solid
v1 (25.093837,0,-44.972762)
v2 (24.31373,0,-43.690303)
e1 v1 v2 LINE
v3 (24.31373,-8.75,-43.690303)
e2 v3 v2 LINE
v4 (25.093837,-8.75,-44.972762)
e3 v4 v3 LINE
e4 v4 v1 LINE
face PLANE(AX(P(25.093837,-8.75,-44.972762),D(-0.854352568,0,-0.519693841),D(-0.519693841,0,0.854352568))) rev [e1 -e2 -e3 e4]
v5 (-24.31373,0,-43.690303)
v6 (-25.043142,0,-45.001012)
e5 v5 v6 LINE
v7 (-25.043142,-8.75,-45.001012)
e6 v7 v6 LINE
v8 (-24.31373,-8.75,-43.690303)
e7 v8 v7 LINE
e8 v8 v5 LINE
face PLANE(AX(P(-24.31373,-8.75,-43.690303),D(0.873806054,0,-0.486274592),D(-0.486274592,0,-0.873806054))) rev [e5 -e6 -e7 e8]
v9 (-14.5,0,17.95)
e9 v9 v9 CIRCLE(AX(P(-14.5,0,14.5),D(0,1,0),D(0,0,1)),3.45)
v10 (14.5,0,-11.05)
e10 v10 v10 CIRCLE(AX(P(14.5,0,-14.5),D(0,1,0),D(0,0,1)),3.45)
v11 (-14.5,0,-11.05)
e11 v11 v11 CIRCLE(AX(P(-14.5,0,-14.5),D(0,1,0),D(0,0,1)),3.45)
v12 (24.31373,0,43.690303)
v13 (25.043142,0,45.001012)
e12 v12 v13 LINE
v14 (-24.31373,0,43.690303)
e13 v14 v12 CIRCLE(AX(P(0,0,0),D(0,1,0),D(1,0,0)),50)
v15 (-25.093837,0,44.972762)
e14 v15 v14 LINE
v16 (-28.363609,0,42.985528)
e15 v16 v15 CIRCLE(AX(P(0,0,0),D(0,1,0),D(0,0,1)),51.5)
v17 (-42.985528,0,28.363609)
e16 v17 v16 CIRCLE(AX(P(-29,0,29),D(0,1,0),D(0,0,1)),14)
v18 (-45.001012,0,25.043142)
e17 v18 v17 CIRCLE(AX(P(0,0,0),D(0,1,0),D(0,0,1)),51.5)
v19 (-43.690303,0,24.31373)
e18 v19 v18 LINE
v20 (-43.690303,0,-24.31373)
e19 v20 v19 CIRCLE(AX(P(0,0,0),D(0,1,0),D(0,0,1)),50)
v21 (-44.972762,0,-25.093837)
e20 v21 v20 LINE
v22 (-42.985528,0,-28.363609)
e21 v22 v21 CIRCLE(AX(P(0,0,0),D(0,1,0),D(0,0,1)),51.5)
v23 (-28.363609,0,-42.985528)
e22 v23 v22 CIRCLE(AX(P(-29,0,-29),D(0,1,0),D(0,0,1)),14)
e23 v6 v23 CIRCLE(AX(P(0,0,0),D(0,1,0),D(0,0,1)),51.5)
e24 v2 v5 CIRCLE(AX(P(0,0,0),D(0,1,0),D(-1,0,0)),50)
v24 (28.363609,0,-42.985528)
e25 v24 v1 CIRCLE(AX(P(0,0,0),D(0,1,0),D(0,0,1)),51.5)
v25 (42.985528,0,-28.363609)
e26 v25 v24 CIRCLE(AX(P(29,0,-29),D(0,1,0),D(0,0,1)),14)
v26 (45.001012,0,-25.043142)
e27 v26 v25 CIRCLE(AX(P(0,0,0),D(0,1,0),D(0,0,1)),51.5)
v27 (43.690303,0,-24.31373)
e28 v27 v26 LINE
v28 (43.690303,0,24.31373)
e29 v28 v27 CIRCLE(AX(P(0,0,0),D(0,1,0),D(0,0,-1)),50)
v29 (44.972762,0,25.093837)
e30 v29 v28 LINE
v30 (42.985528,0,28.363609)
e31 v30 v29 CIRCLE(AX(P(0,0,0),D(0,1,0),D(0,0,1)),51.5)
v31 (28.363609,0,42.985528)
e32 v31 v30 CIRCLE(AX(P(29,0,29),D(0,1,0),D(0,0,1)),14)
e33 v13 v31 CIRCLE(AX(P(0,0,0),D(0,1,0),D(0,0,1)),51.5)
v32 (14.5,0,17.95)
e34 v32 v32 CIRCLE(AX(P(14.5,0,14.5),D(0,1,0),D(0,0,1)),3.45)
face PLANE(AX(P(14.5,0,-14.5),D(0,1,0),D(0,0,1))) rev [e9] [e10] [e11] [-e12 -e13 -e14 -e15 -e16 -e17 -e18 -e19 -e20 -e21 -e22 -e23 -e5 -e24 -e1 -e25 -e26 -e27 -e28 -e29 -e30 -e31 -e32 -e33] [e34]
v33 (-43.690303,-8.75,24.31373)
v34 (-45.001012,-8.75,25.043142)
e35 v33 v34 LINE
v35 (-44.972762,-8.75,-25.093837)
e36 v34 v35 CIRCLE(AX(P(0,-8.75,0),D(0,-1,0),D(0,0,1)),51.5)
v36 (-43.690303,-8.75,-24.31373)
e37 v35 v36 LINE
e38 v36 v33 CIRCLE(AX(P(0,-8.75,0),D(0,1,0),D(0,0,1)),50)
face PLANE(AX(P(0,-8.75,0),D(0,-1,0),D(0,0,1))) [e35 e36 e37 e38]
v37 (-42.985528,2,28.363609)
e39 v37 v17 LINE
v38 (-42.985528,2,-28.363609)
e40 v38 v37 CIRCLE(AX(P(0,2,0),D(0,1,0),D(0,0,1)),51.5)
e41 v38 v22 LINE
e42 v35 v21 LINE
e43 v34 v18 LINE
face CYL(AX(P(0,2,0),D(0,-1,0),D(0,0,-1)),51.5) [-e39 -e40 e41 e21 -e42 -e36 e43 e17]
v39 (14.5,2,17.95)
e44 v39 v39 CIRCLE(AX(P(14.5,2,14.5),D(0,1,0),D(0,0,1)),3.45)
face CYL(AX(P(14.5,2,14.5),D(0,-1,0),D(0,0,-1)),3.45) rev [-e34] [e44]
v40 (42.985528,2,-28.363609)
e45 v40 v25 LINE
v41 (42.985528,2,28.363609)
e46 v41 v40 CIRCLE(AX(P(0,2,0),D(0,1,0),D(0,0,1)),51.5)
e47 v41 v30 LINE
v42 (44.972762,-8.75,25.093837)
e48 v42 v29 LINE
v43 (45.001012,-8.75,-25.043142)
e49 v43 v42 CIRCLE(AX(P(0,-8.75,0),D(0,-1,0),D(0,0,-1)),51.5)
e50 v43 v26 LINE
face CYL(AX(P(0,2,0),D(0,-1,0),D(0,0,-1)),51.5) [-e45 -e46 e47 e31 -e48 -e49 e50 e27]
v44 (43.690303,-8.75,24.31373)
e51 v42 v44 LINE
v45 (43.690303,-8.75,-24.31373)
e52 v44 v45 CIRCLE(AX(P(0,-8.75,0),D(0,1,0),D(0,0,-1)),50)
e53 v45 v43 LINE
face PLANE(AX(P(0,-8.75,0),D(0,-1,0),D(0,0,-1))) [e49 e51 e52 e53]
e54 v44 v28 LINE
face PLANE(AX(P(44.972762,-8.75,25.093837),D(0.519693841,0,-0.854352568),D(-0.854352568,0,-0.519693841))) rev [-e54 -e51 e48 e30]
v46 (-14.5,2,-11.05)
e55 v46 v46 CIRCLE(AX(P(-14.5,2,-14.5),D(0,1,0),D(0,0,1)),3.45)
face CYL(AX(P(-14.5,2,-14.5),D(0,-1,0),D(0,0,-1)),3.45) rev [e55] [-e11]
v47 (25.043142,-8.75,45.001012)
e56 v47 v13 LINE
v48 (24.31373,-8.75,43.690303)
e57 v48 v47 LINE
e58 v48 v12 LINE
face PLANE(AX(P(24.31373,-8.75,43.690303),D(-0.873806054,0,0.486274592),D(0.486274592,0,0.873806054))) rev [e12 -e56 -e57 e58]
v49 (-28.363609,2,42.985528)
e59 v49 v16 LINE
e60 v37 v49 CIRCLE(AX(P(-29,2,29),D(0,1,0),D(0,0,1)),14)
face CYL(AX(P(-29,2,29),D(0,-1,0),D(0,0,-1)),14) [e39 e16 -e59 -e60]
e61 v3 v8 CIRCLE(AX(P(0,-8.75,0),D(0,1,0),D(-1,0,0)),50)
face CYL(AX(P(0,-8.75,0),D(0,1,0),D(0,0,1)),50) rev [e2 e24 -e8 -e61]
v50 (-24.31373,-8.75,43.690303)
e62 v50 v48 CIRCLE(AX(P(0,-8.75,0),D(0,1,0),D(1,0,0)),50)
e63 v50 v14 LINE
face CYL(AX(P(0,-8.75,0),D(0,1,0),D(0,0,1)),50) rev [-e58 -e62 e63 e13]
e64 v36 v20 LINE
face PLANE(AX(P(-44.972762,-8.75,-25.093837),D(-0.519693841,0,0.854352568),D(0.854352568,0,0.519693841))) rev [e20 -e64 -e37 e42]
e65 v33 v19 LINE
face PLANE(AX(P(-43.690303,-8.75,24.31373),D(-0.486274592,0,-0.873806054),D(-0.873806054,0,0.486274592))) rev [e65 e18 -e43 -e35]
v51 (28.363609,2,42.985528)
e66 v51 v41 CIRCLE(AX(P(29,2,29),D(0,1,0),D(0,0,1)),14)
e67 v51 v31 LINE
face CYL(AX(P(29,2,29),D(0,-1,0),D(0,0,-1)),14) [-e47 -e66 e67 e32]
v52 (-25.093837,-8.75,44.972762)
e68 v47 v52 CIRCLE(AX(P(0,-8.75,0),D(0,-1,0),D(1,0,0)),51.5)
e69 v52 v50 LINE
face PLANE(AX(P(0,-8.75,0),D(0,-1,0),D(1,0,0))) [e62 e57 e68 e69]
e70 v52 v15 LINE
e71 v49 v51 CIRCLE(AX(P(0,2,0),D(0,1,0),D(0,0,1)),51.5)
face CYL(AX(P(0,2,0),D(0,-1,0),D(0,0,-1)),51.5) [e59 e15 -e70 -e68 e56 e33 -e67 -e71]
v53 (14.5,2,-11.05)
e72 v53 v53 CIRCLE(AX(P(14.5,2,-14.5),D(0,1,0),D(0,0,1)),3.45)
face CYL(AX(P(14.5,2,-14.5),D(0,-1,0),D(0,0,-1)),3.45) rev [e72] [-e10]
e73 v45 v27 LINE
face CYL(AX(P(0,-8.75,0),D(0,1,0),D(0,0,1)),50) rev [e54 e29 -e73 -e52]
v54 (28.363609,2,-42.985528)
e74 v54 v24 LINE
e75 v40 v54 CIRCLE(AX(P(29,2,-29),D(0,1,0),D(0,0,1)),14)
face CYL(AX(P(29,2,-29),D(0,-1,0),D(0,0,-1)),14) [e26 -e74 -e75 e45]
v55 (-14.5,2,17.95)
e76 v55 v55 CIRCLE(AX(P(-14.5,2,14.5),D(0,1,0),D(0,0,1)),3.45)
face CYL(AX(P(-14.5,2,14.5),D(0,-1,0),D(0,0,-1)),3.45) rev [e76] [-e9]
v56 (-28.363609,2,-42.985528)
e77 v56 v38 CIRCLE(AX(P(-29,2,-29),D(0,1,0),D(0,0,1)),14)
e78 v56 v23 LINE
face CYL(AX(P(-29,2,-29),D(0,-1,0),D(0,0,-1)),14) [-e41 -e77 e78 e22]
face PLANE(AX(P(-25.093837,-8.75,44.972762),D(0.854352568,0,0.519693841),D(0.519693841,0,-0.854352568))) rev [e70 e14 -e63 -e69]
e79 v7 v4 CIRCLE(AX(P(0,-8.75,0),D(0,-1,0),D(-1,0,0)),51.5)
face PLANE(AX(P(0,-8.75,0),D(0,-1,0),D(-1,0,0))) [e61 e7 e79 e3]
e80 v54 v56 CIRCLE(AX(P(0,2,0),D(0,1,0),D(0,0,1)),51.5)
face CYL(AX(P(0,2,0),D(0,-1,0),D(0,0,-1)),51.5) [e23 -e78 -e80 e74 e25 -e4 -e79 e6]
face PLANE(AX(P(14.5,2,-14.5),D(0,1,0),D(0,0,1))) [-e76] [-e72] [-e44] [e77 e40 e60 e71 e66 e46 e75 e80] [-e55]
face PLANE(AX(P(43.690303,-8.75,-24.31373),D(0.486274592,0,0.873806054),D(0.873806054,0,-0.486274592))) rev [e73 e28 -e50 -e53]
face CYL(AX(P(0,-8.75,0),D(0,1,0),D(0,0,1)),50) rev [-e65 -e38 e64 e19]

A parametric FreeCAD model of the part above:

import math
import FreeCAD as App
import Part
import Sketcher

V = App.Vector
Q = App.Units.Quantity

doc = App.newDocument("Part")
body = doc.addObject("PartDesign::Body", "Body")

sketch1 = body.newObject("Sketcher::SketchObject", "Sketch")
sketch1.AttachmentSupport = (doc.getObject("XZ_Plane"), [""])
sketch1.MapMode = "FlatFace"
sketch1.addGeometry(Part.ArcOfCircle(Part.Circle(V(29, 29, 0), V(0, 0, 1), 14), math.radians(-3), math.radians(93)), False)
sketch1.addGeometry(Part.ArcOfCircle(Part.Circle(V(0, 0, 0), V(0, 0, 1), 51.5), math.radians(-33), math.radians(33)), False)
sketch1.addGeometry(Part.ArcOfCircle(Part.Circle(V(29, -29, 0), V(0, 0, 1), 14), math.radians(-93), math.radians(3)), False)
sketch1.addGeometry(Part.ArcOfCircle(Part.Circle(V(0, 0, 0), V(0, 0, 1), 51.5), math.radians(-123), math.radians(-57)), False)
sketch1.addGeometry(Part.ArcOfCircle(Part.Circle(V(-29, -29, 0), V(0, 0, 1), 14), math.radians(177), math.radians(273)), False)
sketch1.addGeometry(Part.ArcOfCircle(Part.Circle(V(0, 0, 0), V(0, 0, 1), 51.5), math.radians(147), math.radians(213)), False)
sketch1.addGeometry(Part.ArcOfCircle(Part.Circle(V(-29, 29, 0), V(0, 0, 1), 14), math.radians(87), math.radians(183)), False)
sketch1.addGeometry(Part.ArcOfCircle(Part.Circle(V(0, 0, 0), V(0, 0, 1), 51.5), math.radians(57), math.radians(123)), False)
sketch1.addGeometry(Part.Circle(V(-14.5, 14.5, 0), V(0, 0, 1), 3.5), False)
sketch1.addGeometry(Part.Circle(V(14.5, 14.5, 0), V(0, 0, 1), 3.5), False)
sketch1.addGeometry(Part.Circle(V(-14.5, -14.5, 0), V(0, 0, 1), 3.5), False)
sketch1.addGeometry(Part.Circle(V(14.5, -14.5, 0), V(0, 0, 1), 3.5), False)
sketch1.addConstraint(Sketcher.Constraint("Coincident", 0, 1, 1, 2))
sketch1.addConstraint(Sketcher.Constraint("Coincident", 1, 1, 2, 2))
sketch1.addConstraint(Sketcher.Constraint("Coincident", 2, 1, 3, 2))
sketch1.addConstraint(Sketcher.Constraint("Coincident", 3, 1, 4, 2))
sketch1.addConstraint(Sketcher.Constraint("Coincident", 4, 1, 5, 2))
sketch1.addConstraint(Sketcher.Constraint("Coincident", 5, 1, 6, 2))
sketch1.addConstraint(Sketcher.Constraint("Coincident", 6, 1, 7, 2))
sketch1.addConstraint(Sketcher.Constraint("Coincident", 7, 1, 0, 2))
sketch1.addConstraint(Sketcher.Constraint("Coincident", 1, 3, -1, 1))
sketch1.addConstraint(Sketcher.Constraint("Coincident", 3, 3, -1, 1))
sketch1.addConstraint(Sketcher.Constraint("Coincident", 5, 3, -1, 1))
sketch1.addConstraint(Sketcher.Constraint("Coincident", 7, 3, -1, 1))
sketch1.addConstraint(Sketcher.Constraint("Equal", 0, 2))
sketch1.addConstraint(Sketcher.Constraint("Equal", 1, 3))
sketch1.addConstraint(Sketcher.Constraint("Equal", 2, 4))
sketch1.addConstraint(Sketcher.Constraint("Equal", 3, 5))
sketch1.addConstraint(Sketcher.Constraint("Equal", 4, 6))
sketch1.addConstraint(Sketcher.Constraint("Equal", 5, 7))
sketch1.addConstraint(Sketcher.Constraint("Equal", 8, 9))
sketch1.addConstraint(Sketcher.Constraint("Equal", 9, 10))
sketch1.addConstraint(Sketcher.Constraint("Equal", 10, 11))
sketch1.addConstraint(Sketcher.Constraint("Symmetric", 0, 3, 4, 3, -1, 1))
sketch1.addConstraint(Sketcher.Constraint("Symmetric", 2, 3, 6, 3, -1, 1))
sketch1.addConstraint(Sketcher.Constraint("Symmetric", 9, 3, 10, 3, -1, 1))
sketch1.addConstraint(Sketcher.Constraint("Symmetric", 8, 3, 11, 3, -1, 1))
sketch1.addConstraint(Sketcher.Constraint("Symmetric", 2, 3, 4, 3, -2))
sketch1.addConstraint(Sketcher.Constraint("Symmetric", 8, 3, 9, 3, -2))
sketch1.addConstraint(Sketcher.Constraint("Radius", 0, Q("14 mm")))
sketch1.addConstraint(Sketcher.Constraint("Diameter", 8, Q("6.9 mm")))
sketch1.addConstraint(Sketcher.Constraint("Radius", 1, Q("51.5 mm")))
sketch1.addConstraint(Sketcher.Constraint("DistanceX", -1, 1, 0, 3, Q("29 mm")))
sketch1.addConstraint(Sketcher.Constraint("DistanceY", -1, 1, 0, 3, Q("29 mm")))
sketch1.addConstraint(Sketcher.Constraint("DistanceX", 8, 3, -1, 1, Q("14.5 mm")))
sketch1.addConstraint(Sketcher.Constraint("DistanceY", -1, 1, 8, 3, Q("14.5 mm")))
pad1 = body.newObject("PartDesign::Pad", "Pad")
pad1.Profile = sketch1
pad1.Length = 2
pad1.Reversed = True

sketch2 = body.newObject("Sketcher::SketchObject", "Sketch001")
sketch2.AttachmentSupport = (doc.getObject("XZ_Plane"), [""])
sketch2.MapMode = "FlatFace"
sketch2.AttachmentOffset = App.Placement(V(0, 0, 8.75), App.Rotation())
sketch2.addGeometry(Part.LineSegment(V(43.690303, -24.31373, 0), V(45.001012, -25.043142, 0)), False)
sketch2.addGeometry(Part.ArcOfCircle(Part.Circle(V(0, 0, 0), V(0, 0, 1), 51.5), math.radians(-29.096014), math.radians(29.16058)), False)
sketch2.addGeometry(Part.LineSegment(V(44.972762, 25.093837, 0), V(43.690303, 24.31373, 0)), False)
sketch2.addGeometry(Part.ArcOfCircle(Part.Circle(V(0, 0, 0), V(0, 0, 1), 50), math.radians(-29.096014), math.radians(29.096014)), False)
sketch2.addConstraint(Sketcher.Constraint("Coincident", 0, 2, 1, 1))
sketch2.addConstraint(Sketcher.Constraint("Coincident", 1, 2, 2, 1))
sketch2.addConstraint(Sketcher.Constraint("Coincident", 2, 2, 3, 2))
sketch2.addConstraint(Sketcher.Constraint("Coincident", 3, 1, 0, 1))
sketch2.addConstraint(Sketcher.Constraint("Coincident", 1, 3, -1, 1))
sketch2.addConstraint(Sketcher.Constraint("Coincident", 3, 3, -1, 1))
sketch2.addConstraint(Sketcher.Constraint("Vertical", 2, 2, 3, 1))
sketch2.addConstraint(Sketcher.Constraint("Radius", 3, Q("50 mm")))
sketch2.addConstraint(Sketcher.Constraint("Radius", 1, Q("51.5 mm")))
sketch2.addConstraint(Sketcher.Constraint("Distance", 2, Q("1.50109 mm")))
sketch2.addConstraint(Sketcher.Constraint("DistanceX", -1, 1, 0, 2, Q("45.001012 mm")))
sketch2.addConstraint(Sketcher.Constraint("DistanceY", -1, 1, 2, 2, Q("24.31373 mm")))
pad2 = body.newObject("PartDesign::Pad", "Pad001")
pad2.Profile = sketch2
pad2.Length = 8.75
pad2.Reversed = True
doc.recompute()

polarpattern = body.newObject("PartDesign::PolarPattern", "PolarPattern")
polarpattern.Originals = [pad2]
polarpattern.Axis = (doc.getObject("Y_Axis"), [""])
polarpattern.Angle = 360
polarpattern.Occurrences = 4
body.Tip = polarpattern

doc.recompute()
